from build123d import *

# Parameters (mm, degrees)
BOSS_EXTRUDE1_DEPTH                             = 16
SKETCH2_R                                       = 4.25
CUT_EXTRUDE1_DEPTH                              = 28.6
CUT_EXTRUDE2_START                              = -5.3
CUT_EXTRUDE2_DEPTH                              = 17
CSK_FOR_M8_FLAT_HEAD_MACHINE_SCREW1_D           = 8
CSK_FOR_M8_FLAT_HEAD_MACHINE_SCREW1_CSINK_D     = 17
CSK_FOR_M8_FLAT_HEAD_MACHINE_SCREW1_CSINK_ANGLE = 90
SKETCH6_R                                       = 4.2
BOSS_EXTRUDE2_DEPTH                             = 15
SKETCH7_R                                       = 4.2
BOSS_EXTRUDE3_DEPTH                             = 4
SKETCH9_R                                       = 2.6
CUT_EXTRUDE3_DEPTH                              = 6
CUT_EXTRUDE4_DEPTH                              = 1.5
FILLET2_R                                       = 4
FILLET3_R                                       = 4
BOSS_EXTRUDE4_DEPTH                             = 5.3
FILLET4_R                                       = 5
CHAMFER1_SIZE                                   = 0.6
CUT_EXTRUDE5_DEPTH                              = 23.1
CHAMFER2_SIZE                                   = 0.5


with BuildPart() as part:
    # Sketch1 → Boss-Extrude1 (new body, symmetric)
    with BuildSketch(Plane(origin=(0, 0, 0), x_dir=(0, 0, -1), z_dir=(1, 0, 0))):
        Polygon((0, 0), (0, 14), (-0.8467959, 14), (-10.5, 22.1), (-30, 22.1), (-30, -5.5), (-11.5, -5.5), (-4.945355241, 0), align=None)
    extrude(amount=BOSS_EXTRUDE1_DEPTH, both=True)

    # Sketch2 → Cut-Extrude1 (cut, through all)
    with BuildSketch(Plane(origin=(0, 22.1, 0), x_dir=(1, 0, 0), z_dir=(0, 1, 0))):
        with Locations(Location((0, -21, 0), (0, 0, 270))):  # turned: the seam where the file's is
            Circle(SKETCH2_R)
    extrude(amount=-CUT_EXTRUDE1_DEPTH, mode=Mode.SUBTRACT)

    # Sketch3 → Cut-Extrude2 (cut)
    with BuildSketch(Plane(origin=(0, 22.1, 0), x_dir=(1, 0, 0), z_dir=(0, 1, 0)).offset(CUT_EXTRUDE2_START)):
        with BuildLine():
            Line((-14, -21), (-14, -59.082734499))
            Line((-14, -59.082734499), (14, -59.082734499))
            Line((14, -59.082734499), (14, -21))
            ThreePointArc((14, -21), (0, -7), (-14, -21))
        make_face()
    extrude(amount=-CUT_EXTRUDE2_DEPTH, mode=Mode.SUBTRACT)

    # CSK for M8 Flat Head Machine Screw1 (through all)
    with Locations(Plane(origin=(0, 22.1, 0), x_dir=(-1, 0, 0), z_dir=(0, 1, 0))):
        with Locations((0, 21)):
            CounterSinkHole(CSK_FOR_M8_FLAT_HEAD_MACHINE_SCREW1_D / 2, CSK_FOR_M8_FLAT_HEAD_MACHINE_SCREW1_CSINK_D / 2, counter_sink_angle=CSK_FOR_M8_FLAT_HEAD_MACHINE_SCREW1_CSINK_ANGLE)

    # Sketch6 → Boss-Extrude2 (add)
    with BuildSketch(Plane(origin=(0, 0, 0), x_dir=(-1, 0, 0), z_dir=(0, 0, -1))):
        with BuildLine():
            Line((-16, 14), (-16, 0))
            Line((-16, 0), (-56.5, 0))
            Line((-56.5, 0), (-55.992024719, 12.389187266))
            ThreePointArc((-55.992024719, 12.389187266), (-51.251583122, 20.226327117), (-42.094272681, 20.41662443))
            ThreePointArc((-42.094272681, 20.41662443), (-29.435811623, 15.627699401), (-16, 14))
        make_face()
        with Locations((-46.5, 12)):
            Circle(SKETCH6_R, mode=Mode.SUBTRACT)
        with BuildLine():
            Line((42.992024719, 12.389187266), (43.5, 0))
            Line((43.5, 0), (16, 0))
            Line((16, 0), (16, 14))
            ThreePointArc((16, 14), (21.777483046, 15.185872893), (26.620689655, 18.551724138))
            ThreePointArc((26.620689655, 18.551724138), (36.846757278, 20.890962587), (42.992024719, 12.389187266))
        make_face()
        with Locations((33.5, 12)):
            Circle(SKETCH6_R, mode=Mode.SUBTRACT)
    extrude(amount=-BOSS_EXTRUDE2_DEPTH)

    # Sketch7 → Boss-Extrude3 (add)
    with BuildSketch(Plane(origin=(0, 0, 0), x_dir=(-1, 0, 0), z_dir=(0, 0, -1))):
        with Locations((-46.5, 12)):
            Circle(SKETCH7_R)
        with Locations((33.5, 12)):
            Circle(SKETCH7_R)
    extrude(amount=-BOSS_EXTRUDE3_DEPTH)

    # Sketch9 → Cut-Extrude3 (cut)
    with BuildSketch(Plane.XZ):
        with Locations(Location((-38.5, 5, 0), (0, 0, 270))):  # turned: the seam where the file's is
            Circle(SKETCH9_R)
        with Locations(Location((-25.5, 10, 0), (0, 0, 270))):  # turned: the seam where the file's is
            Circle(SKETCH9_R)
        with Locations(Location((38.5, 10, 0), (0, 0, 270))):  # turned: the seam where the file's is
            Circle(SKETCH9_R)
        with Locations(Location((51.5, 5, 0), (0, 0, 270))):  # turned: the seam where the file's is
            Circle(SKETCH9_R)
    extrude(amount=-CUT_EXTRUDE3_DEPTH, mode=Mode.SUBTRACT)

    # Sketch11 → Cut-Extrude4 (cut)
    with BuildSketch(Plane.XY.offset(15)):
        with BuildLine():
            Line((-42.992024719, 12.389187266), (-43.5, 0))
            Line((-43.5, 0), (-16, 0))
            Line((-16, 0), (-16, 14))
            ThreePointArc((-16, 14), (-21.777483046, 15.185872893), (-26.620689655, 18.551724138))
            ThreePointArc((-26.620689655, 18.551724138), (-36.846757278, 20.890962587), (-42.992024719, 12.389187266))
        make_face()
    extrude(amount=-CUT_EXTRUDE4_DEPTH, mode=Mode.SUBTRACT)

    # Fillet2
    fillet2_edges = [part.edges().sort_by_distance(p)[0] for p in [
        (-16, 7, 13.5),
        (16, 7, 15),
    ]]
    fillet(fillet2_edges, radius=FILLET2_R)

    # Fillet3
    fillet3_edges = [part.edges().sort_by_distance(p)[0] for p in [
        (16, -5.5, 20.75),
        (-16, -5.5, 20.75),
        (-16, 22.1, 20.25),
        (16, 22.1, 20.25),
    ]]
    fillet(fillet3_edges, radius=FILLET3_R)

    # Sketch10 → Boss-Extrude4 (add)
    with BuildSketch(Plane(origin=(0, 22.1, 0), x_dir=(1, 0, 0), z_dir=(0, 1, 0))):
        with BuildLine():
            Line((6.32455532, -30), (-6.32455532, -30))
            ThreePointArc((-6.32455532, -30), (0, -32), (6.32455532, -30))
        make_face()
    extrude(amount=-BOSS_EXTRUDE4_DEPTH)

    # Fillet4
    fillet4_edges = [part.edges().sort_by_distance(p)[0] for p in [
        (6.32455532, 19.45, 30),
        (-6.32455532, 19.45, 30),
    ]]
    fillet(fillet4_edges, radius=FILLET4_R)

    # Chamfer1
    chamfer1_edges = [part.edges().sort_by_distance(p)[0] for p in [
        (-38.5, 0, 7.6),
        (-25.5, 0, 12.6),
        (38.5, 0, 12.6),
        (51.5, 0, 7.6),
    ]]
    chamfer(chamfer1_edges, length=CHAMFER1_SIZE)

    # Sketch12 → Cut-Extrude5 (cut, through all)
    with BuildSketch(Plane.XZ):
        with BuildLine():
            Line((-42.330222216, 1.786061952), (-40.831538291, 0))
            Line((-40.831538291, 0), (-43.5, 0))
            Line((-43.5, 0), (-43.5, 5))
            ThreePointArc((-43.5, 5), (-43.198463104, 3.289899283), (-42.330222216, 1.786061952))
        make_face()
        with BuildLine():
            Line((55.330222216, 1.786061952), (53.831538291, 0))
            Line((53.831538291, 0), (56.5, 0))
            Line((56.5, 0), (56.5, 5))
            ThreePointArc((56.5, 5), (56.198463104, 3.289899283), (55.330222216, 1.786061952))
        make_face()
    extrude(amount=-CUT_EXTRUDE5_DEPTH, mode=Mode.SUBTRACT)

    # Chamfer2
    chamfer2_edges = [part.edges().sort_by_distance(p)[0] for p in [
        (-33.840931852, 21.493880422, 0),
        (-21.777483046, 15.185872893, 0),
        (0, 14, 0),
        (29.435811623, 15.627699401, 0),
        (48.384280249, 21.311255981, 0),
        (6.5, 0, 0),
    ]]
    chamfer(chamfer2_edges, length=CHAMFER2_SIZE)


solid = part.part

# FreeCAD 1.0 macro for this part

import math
import FreeCAD as App
import Part
import Sketcher

V = App.Vector
Q = App.Units.Quantity


def edges_at(feature, points):
    """Names of the edges that pass closest to the given points."""
    edges = feature.Shape.Edges
    near = lambda p: min(range(len(edges)), key=lambda i: edges[i].distToShape(Part.Vertex(*p))[0])
    return sorted({f"Edge{near(p) + 1}" for p in points})

doc = App.newDocument("Part")
body = doc.addObject("PartDesign::Body", "Body")

# Sketch on YZ plane
sketch1 = body.newObject("Sketcher::SketchObject", "Sketch")
sketch1.AttachmentSupport = (doc.getObject("YZ_Plane"), [""])
sketch1.MapMode = "FlatFace"
sketch1.addGeometry(Part.LineSegment(V(0, 0, 0), V(14, 0, 0)), False)
sketch1.addGeometry(Part.LineSegment(V(14, 0, 0), V(14, 0.8, 0)), False)
sketch1.addGeometry(Part.LineSegment(V(14, 0.8, 0), V(22.1, 10.5, 0)), False)
sketch1.addGeometry(Part.LineSegment(V(22.1, 10.5, 0), V(22.1, 30, 0)), False)
sketch1.addGeometry(Part.LineSegment(V(22.1, 30, 0), V(-5.5, 30, 0)), False)
sketch1.addGeometry(Part.LineSegment(V(-5.5, 30, 0), V(-5.5, 11.5, 0)), False)
sketch1.addGeometry(Part.LineSegment(V(-5.5, 11.5, 0), V(0, 4.9, 0)), False)
sketch1.addGeometry(Part.LineSegment(V(0, 4.9, 0), V(0, 0, 0)), False)
sketch1.addConstraint(Sketcher.Constraint("Coincident", 0, 2, 1, 1))
sketch1.addConstraint(Sketcher.Constraint("Coincident", 1, 2, 2, 1))
sketch1.addConstraint(Sketcher.Constraint("Coincident", 2, 2, 3, 1))
sketch1.addConstraint(Sketcher.Constraint("Coincident", 3, 2, 4, 1))
sketch1.addConstraint(Sketcher.Constraint("Coincident", 4, 2, 5, 1))
sketch1.addConstraint(Sketcher.Constraint("Coincident", 5, 2, 6, 1))
sketch1.addConstraint(Sketcher.Constraint("Coincident", 6, 2, 7, 1))
sketch1.addConstraint(Sketcher.Constraint("Coincident", 7, 2, 0, 1))
sketch1.addConstraint(Sketcher.Constraint("Horizontal", 0))
sketch1.addConstraint(Sketcher.Constraint("Vertical", 1))
sketch1.addConstraint(Sketcher.Constraint("Vertical", 3))
sketch1.addConstraint(Sketcher.Constraint("Horizontal", 4))
sketch1.addConstraint(Sketcher.Constraint("Vertical", 5))
sketch1.addConstraint(Sketcher.Constraint("Vertical", 7))
sketch1.addConstraint(Sketcher.Constraint("Coincident", 7, 2, -1, 1))
sketch1.addConstraint(Sketcher.Constraint("DistanceX", 0, 1, 0, 2, 14.0))
sketch1.addConstraint(Sketcher.Constraint("Angle", 2, Q("50 deg")))
sketch1.addConstraint(Sketcher.Constraint("Angle", 6, Q("-50 deg")))
sketch1.addConstraint(Sketcher.Constraint("DistanceX", 4, 2, 4, 1, 27.6))
sketch1.addConstraint(Sketcher.Constraint("DistanceY", 3, 1, 3, 2, 19.5))
sketch1.addConstraint(Sketcher.Constraint("DistanceY", 5, 2, 5, 1, 18.5))
sketch1.addConstraint(Sketcher.Constraint("DistanceY", -1, 1, 3, 2, 30.0))
sketch1.addConstraint(Sketcher.Constraint("DistanceX", -1, 1, 2, 2, 22.1))
pad1 = body.newObject("PartDesign::Pad", "Pad")
pad1.Profile = sketch1
pad1.Length = 32
pad1.Midplane = True

# Sketch on XZ plane
sketch2 = body.newObject("Sketcher::SketchObject", "Sketch001")
sketch2.AttachmentSupport = (doc.getObject("XZ_Plane"), [""])
sketch2.MapMode = "FlatFace"
sketch2.AttachmentOffset = App.Placement(V(0, 0, -22.1), App.Rotation())
sketch2.addGeometry(Part.Circle(V(0, 21, 0), V(0, 0, 1), 4.2), False)
sketch2.addConstraint(Sketcher.Constraint("PointOnObject", 0, 3, -2))
sketch2.addConstraint(Sketcher.Constraint("Diameter", 0, 8.5))
sketch2.addConstraint(Sketcher.Constraint("DistanceY", -1, 1, 0, 3, 21.0))
pocket1 = body.newObject("PartDesign::Pocket", "Pocket")
pocket1.Profile = sketch2
pocket1.Type = "ThroughAll"
pocket1.Reversed = True

# Sketch on XZ plane
sketch3 = body.newObject("Sketcher::SketchObject", "Sketch002")
sketch3.AttachmentSupport = (doc.getObject("XZ_Plane"), [""])
sketch3.MapMode = "FlatFace"
sketch3.AttachmentOffset = App.Placement(V(0, 0, -16.8), App.Rotation())
sketch3.addGeometry(Part.LineSegment(V(-14, 21, 0), V(-14, 59, 0)), False)
sketch3.addGeometry(Part.LineSegment(V(-14, 59, 0), V(14, 59, 0)), False)
sketch3.addGeometry(Part.LineSegment(V(14, 59, 0), V(14, 21, 0)), False)
sketch3.addGeometry(Part.ArcOfCircle(Part.Circle(V(0, 21, 0), V(0, 0, 1), 14), math.radians(180), math.radians(360)), False)
sketch3.addConstraint(Sketcher.Constraint("Coincident", 0, 2, 1, 1))
sketch3.addConstraint(Sketcher.Constraint("Coincident", 1, 2, 2, 1))
sketch3.addConstraint(Sketcher.Constraint("Tangent", 2, 2, 3, 2))
sketch3.addConstraint(Sketcher.Constraint("Tangent", 3, 1, 0, 1))
sketch3.addConstraint(Sketcher.Constraint("Vertical", 0))
sketch3.addConstraint(Sketcher.Constraint("Horizontal", 1))
sketch3.addConstraint(Sketcher.Constraint("Vertical", 2))
sketch3.addConstraint(Sketcher.Constraint("PointOnObject", 3, 3, -2))
sketch3.addConstraint(Sketcher.Constraint("Radius", 3, 14.0))
sketch3.addConstraint(Sketcher.Constraint("DistanceY", -1, 1, 3, 3, 21.0))
sketch3.addConstraint(Sketcher.Constraint("DistanceY", 0, 1, 0, 2, 38.082734))
pocket2 = body.newObject("PartDesign::Pocket", "Pocket001")
pocket2.Profile = sketch3
pocket2.Length = 17
pocket2.Reversed = True

# Sketch on XZ plane
sketch4 = body.newObject("Sketcher::SketchObject", "Sketch003")
sketch4.AttachmentSupport = (doc.getObject("XZ_Plane"), [""])
sketch4.MapMode = "FlatFace"
sketch4.AttachmentOffset = App.Placement(V(0, 0, -22.1), App.Rotation())
sketch4.addGeometry(Part.Circle(V(0, 21, 0), V(0, 0, 1), 4), False)
sketch4.addConstraint(Sketcher.Constraint("PointOnObject", 0, 3, -2))
sketch4.addConstraint(Sketcher.Constraint("Diameter", 0, 8.0))
sketch4.addConstraint(Sketcher.Constraint("DistanceY", -1, 1, 0, 3, 21.0))
doc.recompute()
hole = body.newObject("PartDesign::Hole", "Hole")
hole.Profile = sketch4
hole.ThreadType = "None"
hole.Diameter = 8
hole.DepthType = "ThroughAll"
hole.HoleCutType = "Countersink"
hole.HoleCutDiameter = 17
hole.HoleCutCountersinkAngle = 90
hole.Reversed = True

# Sketch on XY plane
sketch5 = body.newObject("Sketcher::SketchObject", "Sketch004")
sketch5.AttachmentSupport = (doc.getObject("XY_Plane"), [""])
sketch5.MapMode = "FlatFace"
sketch5.addGeometry(Part.LineSegment(V(16, 0, 0), V(16, 14, 0)), False)
sketch5.addGeometry(Part.ArcOfCircle(Part.Circle(V(16, 70.3, 0), V(0, 0, 1), 56.3), math.radians(-90), math.radians(-62)), False)
sketch5.addGeometry(Part.ArcOfCircle(Part.Circle(V(46.5, 12, 0), V(0, 0, 1), 9.5), math.radians(2), math.radians(118)), False)
sketch5.addGeometry(Part.LineSegment(V(56, 12.4, 0), V(56.5, 0, 0)), False)
sketch5.addGeometry(Part.LineSegment(V(56.5, 0, 0), V(16, 0, 0)), False)
sketch5.addGeometry(Part.Circle(V(46.5, 12, 0), V(0, 0, 1), 4.2), False)
sketch5.addGeometry(Part.LineSegment(V(-43.5, 0, 0), V(-43, 12.4, 0)), False)
sketch5.addGeometry(Part.ArcOfCircle(Part.Circle(V(-33.5, 12, 0), V(0, 0, 1), 9.5), math.radians(44), math.radians(178)), False)
sketch5.addGeometry(Part.ArcOfCircle(Part.Circle(V(-16, 28.7, 0), V(0, 0, 1), 14.7), math.radians(-136), math.radians(-90)), False)
sketch5.addGeometry(Part.LineSegment(V(-16, 14, 0), V(-16, 0, 0)), False)
sketch5.addGeometry(Part.LineSegment(V(-16, 0, 0), V(-43.5, 0, 0)), False)
sketch5.addGeometry(Part.Circle(V(-33.5, 12, 0), V(0, 0, 1), 4.2), False)
sketch5.addConstraint(Sketcher.Constraint("Coincident", 0, 2, 1, 1))
sketch5.addConstraint(Sketcher.Constraint("Tangent", 1, 2, 2, 2))
sketch5.addConstraint(Sketcher.Constraint("Tangent", 2, 1, 3, 1))
sketch5.addConstraint(Sketcher.Constraint("Coincident", 3, 2, 4, 1))
sketch5.addConstraint(Sketcher.Constraint("Coincident", 4, 2, 0, 1))
sketch5.addConstraint(Sketcher.Constraint("Tangent", 6, 2, 7, 2))
sketch5.addConstraint(Sketcher.Constraint("Tangent", 7, 1, 8, 1))
sketch5.addConstraint(Sketcher.Constraint("Coincident", 8, 2, 9, 1))
sketch5.addConstraint(Sketcher.Constraint("Coincident", 9, 2, 10, 1))
sketch5.addConstraint(Sketcher.Constraint("Coincident", 10, 2, 6, 1))
sketch5.addConstraint(Sketcher.Constraint("Vertical", 0))
sketch5.addConstraint(Sketcher.Constraint("Horizontal", 4))
sketch5.addConstraint(Sketcher.Constraint("Vertical", 9))
sketch5.addConstraint(Sketcher.Constraint("Horizontal", 10))
sketch5.addConstraint(Sketcher.Constraint("Coincident", 5, 3, 2, 3))
sketch5.addConstraint(Sketcher.Constraint("Coincident", 11, 3, 7, 3))
sketch5.addConstraint(Sketcher.Constraint("Equal", 2, 7))
sketch5.addConstraint(Sketcher.Constraint("Equal", 5, 11))
sketch5.addConstraint(Sketcher.Constraint("Symmetric", 4, 2, 9, 2, -1, 1))
sketch5.addConstraint(Sketcher.Constraint("PointOnObject", 3, 2, -1))
sketch5.addConstraint(Sketcher.Constraint("Horizontal", 5, 3, 7, 3))
sketch5.addConstraint(Sketcher.Constraint("Horizontal", 2, 1, 6, 2))
sketch5.addConstraint(Sketcher.Constraint("Horizontal", 0, 2, 8, 2))
sketch5.addConstraint(Sketcher.Constraint("Vertical", 1, 3, 0, 2))
sketch5.addConstraint(Sketcher.Constraint("Diameter", 5, 8.4))
sketch5.addConstraint(Sketcher.Constraint("Radius", 2, 9.5))
sketch5.addConstraint(Sketcher.Constraint("DistanceY", 0, 1, 0, 2, 14.0))
sketch5.addConstraint(Sketcher.Constraint("DistanceX", 4, 2, 4, 1, 40.5))
sketch5.addConstraint(Sketcher.Constraint("DistanceX", 10, 2, 10, 1, 27.5))
sketch5.addConstraint(Sketcher.Constraint("DistanceX", -1, 1, 1, 3, 16.0))
sketch5.addConstraint(Sketcher.Constraint("DistanceY", -1, 1, 2, 3, 12.0))
sketch5.addConstraint(Sketcher.Constraint("DistanceX", 8, 3, -1, 1, 16.0))
sketch5.addConstraint(Sketcher.Constraint("DistanceX", 7, 3, 2, 3, 80.0))
pad2 = body.newObject("PartDesign::Pad", "Pad001")
pad2.Profile = sketch5
pad2.Length = 15

# Sketch on XY plane
sketch6 = body.newObject("Sketcher::SketchObject", "Sketch005")
sketch6.AttachmentSupport = (doc.getObject("XY_Plane"), [""])
sketch6.MapMode = "FlatFace"
sketch6.addGeometry(Part.Circle(V(46.5, 12, 0), V(0, 0, 1), 4.2), False)
sketch6.addGeometry(Part.Circle(V(-33.5, 12, 0), V(0, 0, 1), 4.2), False)
sketch6.addConstraint(Sketcher.Constraint("Equal", 0, 1))
sketch6.addConstraint(Sketcher.Constraint("Horizontal", 0, 3, 1, 3))
sketch6.addConstraint(Sketcher.Constraint("Diameter", 0, 8.4))
sketch6.addConstraint(Sketcher.Constraint("DistanceY", -1, 1, 0, 3, 12.0))
sketch6.addConstraint(Sketcher.Constraint("DistanceX", 1, 3, 0, 3, 80.0))
sketch6.addConstraint(Sketcher.Constraint("DistanceX", -1, 1, 0, 3, 46.5))
pad3 = body.newObject("PartDesign::Pad", "Pad002")
pad3.Profile = sketch6
pad3.Length = 4

# Sketch on XZ plane
sketch7 = body.newObject("Sketcher::SketchObject", "Sketch006")
sketch7.AttachmentSupport = (doc.getObject("XZ_Plane"), [""])
sketch7.MapMode = "FlatFace"
sketch7.addGeometry(Part.Circle(V(-38.5, 5, 0), V(0, 0, 1), 2.6), False)
sketch7.addGeometry(Part.Circle(V(-25.5, 10, 0), V(0, 0, 1), 2.6), False)
sketch7.addGeometry(Part.Circle(V(38.5, 10, 0), V(0, 0, 1), 2.6), False)
sketch7.addGeometry(Part.Circle(V(51.5, 5, 0), V(0, 0, 1), 2.6), False)
sketch7.addConstraint(Sketcher.Constraint("Equal", 0, 1))
sketch7.addConstraint(Sketcher.Constraint("Equal", 1, 2))
sketch7.addConstraint(Sketcher.Constraint("Equal", 2, 3))
sketch7.addConstraint(Sketcher.Constraint("Horizontal", 1, 3, 2, 3))
sketch7.addConstraint(Sketcher.Constraint("Horizontal", 0, 3, 3, 3))
sketch7.addConstraint(Sketcher.Constraint("Diameter", 0, 5.2))
sketch7.addConstraint(Sketcher.Constraint("DistanceY", -1, 1, 0, 3, 5.0))
sketch7.addConstraint(Sketcher.Constraint("DistanceY", -1, 1, 1, 3, 10.0))
sketch7.addConstraint(Sketcher.Constraint("DistanceX", 0, 3, 1, 3, 13.0))
sketch7.addConstraint(Sketcher.Constraint("DistanceX", 1, 3, 2, 3, 64.0))
sketch7.addConstraint(Sketcher.Constraint("DistanceX", 2, 3, 3, 3, 13.0))
sketch7.addConstraint(Sketcher.Constraint("DistanceX", 0, 3, -1, 1, 38.5))
pocket3 = body.newObject("PartDesign::Pocket", "Pocket002")
pocket3.Profile = sketch7
pocket3.Length = 6

# Sketch on XY plane
sketch8 = body.newObject("Sketcher::SketchObject", "Sketch007")
sketch8.AttachmentSupport = (doc.getObject("XY_Plane"), [""])
sketch8.MapMode = "FlatFace"
sketch8.AttachmentOffset = App.Placement(V(0, 0, 15), App.Rotation())
sketch8.addGeometry(Part.LineSegment(V(-43, 12, 0), V(-44, 0, 0)), False)
sketch8.addGeometry(Part.LineSegment(V(-44, 0, 0), V(-16, 0, 0)), False)
sketch8.addGeometry(Part.LineSegment(V(-16, 0, 0), V(-16, 14, 0)), False)
sketch8.addGeometry(Part.ArcOfCircle(Part.Circle(V(-16, 29, 0), V(0, 0, 1), 15), math.radians(-136), math.radians(-90)), False)
sketch8.addGeometry(Part.ArcOfCircle(Part.Circle(V(-34, 12, 0), V(0, 0, 1), 10), math.radians(44), math.radians(178)), False)
sketch8.addConstraint(Sketcher.Constraint("Coincident", 0, 2, 1, 1))
sketch8.addConstraint(Sketcher.Constraint("Coincident", 1, 2, 2, 1))
sketch8.addConstraint(Sketcher.Constraint("Coincident", 2, 2, 3, 2))
sketch8.addConstraint(Sketcher.Constraint("Tangent", 3, 1, 4, 1))
sketch8.addConstraint(Sketcher.Constraint("Tangent", 4, 2, 0, 1))
sketch8.addConstraint(Sketcher.Constraint("Horizontal", 1))
sketch8.addConstraint(Sketcher.Constraint("Vertical", 2))
sketch8.addConstraint(Sketcher.Constraint("PointOnObject", 0, 2, -1))
sketch8.addConstraint(Sketcher.Constraint("Vertical", 3, 3, 1, 2))
sketch8.addConstraint(Sketcher.Constraint("Radius", 4, 9.5))
sketch8.addConstraint(Sketcher.Constraint("DistanceY", 2, 1, 2, 2, 14.0))
sketch8.addConstraint(Sketcher.Constraint("DistanceX", 1, 1, 1, 2, 27.5))
sketch8.addConstraint(Sketcher.Constraint("DistanceX", 3, 3, -1, 1, 16.0))
sketch8.addConstraint(Sketcher.Constraint("DistanceY", -1, 1, 4, 3, 12.0))
sketch8.addConstraint(Sketcher.Constraint("DistanceX", 0, 2, 4, 3, 10.0))
pocket4 = body.newObject("PartDesign::Pocket", "Pocket003")
pocket4.Profile = sketch8
pocket4.Length = 1.5
doc.recompute()

fillet = body.newObject("PartDesign::Fillet", "Fillet")
fillet.Base = (pocket4, edges_at(pocket4, [(-16, 7, 13.5), (16, 7, 15)]))
fillet.Radius = 4
doc.recompute()

fillet2 = body.newObject("PartDesign::Fillet", "Fillet001")
fillet2.Base = (fillet, edges_at(fillet, [
    (16, -5.5, 20.75),
    (-16, -5.5, 20.75),
    (-16, 22.1, 20.25),
    (16, 22.1, 20.25),
]))
fillet2.Radius = 4

# Sketch on XZ plane
sketch9 = body.newObject("Sketcher::SketchObject", "Sketch008")
sketch9.AttachmentSupport = (doc.getObject("XZ_Plane"), [""])
sketch9.MapMode = "FlatFace"
sketch9.AttachmentOffset = App.Placement(V(0, 0, -22.1), App.Rotation())
sketch9.addGeometry(Part.LineSegment(V(6, 30, 0), V(-6, 30, 0)), False)
sketch9.addGeometry(Part.ArcOfCircle(Part.Circle(V(0, 21, 0), V(0, 0, 1), 11), math.radians(55), math.radians(125)), False)
sketch9.addConstraint(Sketcher.Constraint("Coincident", 0, 1, 1, 1))
sketch9.addConstraint(Sketcher.Constraint("Coincident", 1, 2, 0, 2))
sketch9.addConstraint(Sketcher.Constraint("Horizontal", 0))
sketch9.addConstraint(Sketcher.Constraint("PointOnObject", 1, 3, -2))
sketch9.addConstraint(Sketcher.Constraint("Radius", 1, 11.0))
sketch9.addConstraint(Sketcher.Constraint("DistanceY", -1, 1, 1, 3, 21.0))
sketch9.addConstraint(Sketcher.Constraint("DistanceY", -1, 1, 0, 1, 30.0))
pad4 = body.newObject("PartDesign::Pad", "Pad003")
pad4.Profile = sketch9
pad4.Length = 5.3
doc.recompute()

fillet3 = body.newObject("PartDesign::Fillet", "Fillet002")
fillet3.Base = (pad4, edges_at(pad4, [(6.325, 19.45, 30), (-6.325, 19.45, 30)]))
fillet3.Radius = 5
doc.recompute()

chamfer = body.newObject("PartDesign::Chamfer", "Chamfer")
chamfer.Base = (fillet3, edges_at(fillet3, [
    (-38.5, 0, 7.6),
    (-25.5, 0, 12.6),
    (38.5, 0, 12.6),
    (51.5, 0, 7.6),
]))
chamfer.Size = 0.6

# Sketch on XZ plane
sketch10 = body.newObject("Sketcher::SketchObject", "Sketch009")
sketch10.AttachmentSupport = (doc.getObject("XZ_Plane"), [""])
sketch10.MapMode = "FlatFace"
sketch10.addGeometry(Part.LineSegment(V(-40.8, 0, 0), V(-42.3, 1.8, 0)), False)
sketch10.addGeometry(Part.ArcOfCircle(Part.Circle(V(-38.5, 5, 0), V(0, 0, 1), 5), math.radians(180), math.radians(220)), False)
sketch10.addGeometry(Part.LineSegment(V(-43.5, 5, 0), V(-43.5, 0, 0)), False)
sketch10.addGeometry(Part.LineSegment(V(-43.5, 0, 0), V(-40.8, 0, 0)), False)
sketch10.addGeometry(Part.LineSegment(V(55.3, 1.8, 0), V(53.8, 0, 0)), False)
sketch10.addGeometry(Part.LineSegment(V(53.8, 0, 0), V(56.5, 0, 0)), False)
sketch10.addGeometry(Part.LineSegment(V(56.5, 0, 0), V(56.5, 5, 0)), False)
sketch10.addGeometry(Part.ArcOfCircle(Part.Circle(V(51.5, 5, 0), V(0, 0, 1), 5), math.radians(-40), math.radians(0)), False)
sketch10.addConstraint(Sketcher.Constraint("Tangent", 0, 2, 1, 2))
sketch10.addConstraint(Sketcher.Constraint("Tangent", 1, 1, 2, 1))
sketch10.addConstraint(Sketcher.Constraint("Coincident", 2, 2, 3, 1))
sketch10.addConstraint(Sketcher.Constraint("Coincident", 3, 2, 0, 1))
sketch10.addConstraint(Sketcher.Constraint("Coincident", 4, 2, 5, 1))
sketch10.addConstraint(Sketcher.Constraint("Coincident", 5, 2, 6, 1))
sketch10.addConstraint(Sketcher.Constraint("Tangent", 6, 2, 7, 2))
sketch10.addConstraint(Sketcher.Constraint("Tangent", 7, 1, 4, 1))
sketch10.addConstraint(Sketcher.Constraint("Vertical", 2))
sketch10.addConstraint(Sketcher.Constraint("Horizontal", 3))
sketch10.addConstraint(Sketcher.Constraint("Horizontal", 5))
sketch10.addConstraint(Sketcher.Constraint("Vertical", 6))
sketch10.addConstraint(Sketcher.Constraint("Equal", 1, 7))
sketch10.addConstraint(Sketcher.Constraint("PointOnObject", 2, 2, -1))
sketch10.addConstraint(Sketcher.Constraint("PointOnObject", 4, 2, -1))
sketch10.addConstraint(Sketcher.Constraint("Horizontal", 1, 3, 7, 3))
sketch10.addConstraint(Sketcher.Constraint("Horizontal", 0, 2, 7, 1))
sketch10.addConstraint(Sketcher.Constraint("Radius", 1, 5.0))
sketch10.addConstraint(Sketcher.Constraint("DistanceY", 2, 2, 2, 1, 5.0))
sketch10.addConstraint(Sketcher.Constraint("Angle", 0, Q("130 deg")))
sketch10.addConstraint(Sketcher.Constraint("DistanceX", 1, 3, 7, 3, 90.0))
sketch10.addConstraint(Sketcher.Constraint("DistanceX", 1, 3, -1, 1, 38.5))
pocket5 = body.newObject("PartDesign::Pocket", "Pocket004")
pocket5.Profile = sketch10
pocket5.Type = "ThroughAll"
doc.recompute()

chamfer2 = body.newObject("PartDesign::Chamfer", "Chamfer001")
chamfer2.Base = (pocket5, edges_at(pocket5, [
    (-33.841, 21.494, 0),
    (-21.777, 15.186, 0),
    (0, 14, 0),
    (29.436, 15.628, 0),
    (48.384, 21.311, 0),
    (6.5, 0, 0),
]))
chamfer2.Size = 0.5

doc.recompute()
